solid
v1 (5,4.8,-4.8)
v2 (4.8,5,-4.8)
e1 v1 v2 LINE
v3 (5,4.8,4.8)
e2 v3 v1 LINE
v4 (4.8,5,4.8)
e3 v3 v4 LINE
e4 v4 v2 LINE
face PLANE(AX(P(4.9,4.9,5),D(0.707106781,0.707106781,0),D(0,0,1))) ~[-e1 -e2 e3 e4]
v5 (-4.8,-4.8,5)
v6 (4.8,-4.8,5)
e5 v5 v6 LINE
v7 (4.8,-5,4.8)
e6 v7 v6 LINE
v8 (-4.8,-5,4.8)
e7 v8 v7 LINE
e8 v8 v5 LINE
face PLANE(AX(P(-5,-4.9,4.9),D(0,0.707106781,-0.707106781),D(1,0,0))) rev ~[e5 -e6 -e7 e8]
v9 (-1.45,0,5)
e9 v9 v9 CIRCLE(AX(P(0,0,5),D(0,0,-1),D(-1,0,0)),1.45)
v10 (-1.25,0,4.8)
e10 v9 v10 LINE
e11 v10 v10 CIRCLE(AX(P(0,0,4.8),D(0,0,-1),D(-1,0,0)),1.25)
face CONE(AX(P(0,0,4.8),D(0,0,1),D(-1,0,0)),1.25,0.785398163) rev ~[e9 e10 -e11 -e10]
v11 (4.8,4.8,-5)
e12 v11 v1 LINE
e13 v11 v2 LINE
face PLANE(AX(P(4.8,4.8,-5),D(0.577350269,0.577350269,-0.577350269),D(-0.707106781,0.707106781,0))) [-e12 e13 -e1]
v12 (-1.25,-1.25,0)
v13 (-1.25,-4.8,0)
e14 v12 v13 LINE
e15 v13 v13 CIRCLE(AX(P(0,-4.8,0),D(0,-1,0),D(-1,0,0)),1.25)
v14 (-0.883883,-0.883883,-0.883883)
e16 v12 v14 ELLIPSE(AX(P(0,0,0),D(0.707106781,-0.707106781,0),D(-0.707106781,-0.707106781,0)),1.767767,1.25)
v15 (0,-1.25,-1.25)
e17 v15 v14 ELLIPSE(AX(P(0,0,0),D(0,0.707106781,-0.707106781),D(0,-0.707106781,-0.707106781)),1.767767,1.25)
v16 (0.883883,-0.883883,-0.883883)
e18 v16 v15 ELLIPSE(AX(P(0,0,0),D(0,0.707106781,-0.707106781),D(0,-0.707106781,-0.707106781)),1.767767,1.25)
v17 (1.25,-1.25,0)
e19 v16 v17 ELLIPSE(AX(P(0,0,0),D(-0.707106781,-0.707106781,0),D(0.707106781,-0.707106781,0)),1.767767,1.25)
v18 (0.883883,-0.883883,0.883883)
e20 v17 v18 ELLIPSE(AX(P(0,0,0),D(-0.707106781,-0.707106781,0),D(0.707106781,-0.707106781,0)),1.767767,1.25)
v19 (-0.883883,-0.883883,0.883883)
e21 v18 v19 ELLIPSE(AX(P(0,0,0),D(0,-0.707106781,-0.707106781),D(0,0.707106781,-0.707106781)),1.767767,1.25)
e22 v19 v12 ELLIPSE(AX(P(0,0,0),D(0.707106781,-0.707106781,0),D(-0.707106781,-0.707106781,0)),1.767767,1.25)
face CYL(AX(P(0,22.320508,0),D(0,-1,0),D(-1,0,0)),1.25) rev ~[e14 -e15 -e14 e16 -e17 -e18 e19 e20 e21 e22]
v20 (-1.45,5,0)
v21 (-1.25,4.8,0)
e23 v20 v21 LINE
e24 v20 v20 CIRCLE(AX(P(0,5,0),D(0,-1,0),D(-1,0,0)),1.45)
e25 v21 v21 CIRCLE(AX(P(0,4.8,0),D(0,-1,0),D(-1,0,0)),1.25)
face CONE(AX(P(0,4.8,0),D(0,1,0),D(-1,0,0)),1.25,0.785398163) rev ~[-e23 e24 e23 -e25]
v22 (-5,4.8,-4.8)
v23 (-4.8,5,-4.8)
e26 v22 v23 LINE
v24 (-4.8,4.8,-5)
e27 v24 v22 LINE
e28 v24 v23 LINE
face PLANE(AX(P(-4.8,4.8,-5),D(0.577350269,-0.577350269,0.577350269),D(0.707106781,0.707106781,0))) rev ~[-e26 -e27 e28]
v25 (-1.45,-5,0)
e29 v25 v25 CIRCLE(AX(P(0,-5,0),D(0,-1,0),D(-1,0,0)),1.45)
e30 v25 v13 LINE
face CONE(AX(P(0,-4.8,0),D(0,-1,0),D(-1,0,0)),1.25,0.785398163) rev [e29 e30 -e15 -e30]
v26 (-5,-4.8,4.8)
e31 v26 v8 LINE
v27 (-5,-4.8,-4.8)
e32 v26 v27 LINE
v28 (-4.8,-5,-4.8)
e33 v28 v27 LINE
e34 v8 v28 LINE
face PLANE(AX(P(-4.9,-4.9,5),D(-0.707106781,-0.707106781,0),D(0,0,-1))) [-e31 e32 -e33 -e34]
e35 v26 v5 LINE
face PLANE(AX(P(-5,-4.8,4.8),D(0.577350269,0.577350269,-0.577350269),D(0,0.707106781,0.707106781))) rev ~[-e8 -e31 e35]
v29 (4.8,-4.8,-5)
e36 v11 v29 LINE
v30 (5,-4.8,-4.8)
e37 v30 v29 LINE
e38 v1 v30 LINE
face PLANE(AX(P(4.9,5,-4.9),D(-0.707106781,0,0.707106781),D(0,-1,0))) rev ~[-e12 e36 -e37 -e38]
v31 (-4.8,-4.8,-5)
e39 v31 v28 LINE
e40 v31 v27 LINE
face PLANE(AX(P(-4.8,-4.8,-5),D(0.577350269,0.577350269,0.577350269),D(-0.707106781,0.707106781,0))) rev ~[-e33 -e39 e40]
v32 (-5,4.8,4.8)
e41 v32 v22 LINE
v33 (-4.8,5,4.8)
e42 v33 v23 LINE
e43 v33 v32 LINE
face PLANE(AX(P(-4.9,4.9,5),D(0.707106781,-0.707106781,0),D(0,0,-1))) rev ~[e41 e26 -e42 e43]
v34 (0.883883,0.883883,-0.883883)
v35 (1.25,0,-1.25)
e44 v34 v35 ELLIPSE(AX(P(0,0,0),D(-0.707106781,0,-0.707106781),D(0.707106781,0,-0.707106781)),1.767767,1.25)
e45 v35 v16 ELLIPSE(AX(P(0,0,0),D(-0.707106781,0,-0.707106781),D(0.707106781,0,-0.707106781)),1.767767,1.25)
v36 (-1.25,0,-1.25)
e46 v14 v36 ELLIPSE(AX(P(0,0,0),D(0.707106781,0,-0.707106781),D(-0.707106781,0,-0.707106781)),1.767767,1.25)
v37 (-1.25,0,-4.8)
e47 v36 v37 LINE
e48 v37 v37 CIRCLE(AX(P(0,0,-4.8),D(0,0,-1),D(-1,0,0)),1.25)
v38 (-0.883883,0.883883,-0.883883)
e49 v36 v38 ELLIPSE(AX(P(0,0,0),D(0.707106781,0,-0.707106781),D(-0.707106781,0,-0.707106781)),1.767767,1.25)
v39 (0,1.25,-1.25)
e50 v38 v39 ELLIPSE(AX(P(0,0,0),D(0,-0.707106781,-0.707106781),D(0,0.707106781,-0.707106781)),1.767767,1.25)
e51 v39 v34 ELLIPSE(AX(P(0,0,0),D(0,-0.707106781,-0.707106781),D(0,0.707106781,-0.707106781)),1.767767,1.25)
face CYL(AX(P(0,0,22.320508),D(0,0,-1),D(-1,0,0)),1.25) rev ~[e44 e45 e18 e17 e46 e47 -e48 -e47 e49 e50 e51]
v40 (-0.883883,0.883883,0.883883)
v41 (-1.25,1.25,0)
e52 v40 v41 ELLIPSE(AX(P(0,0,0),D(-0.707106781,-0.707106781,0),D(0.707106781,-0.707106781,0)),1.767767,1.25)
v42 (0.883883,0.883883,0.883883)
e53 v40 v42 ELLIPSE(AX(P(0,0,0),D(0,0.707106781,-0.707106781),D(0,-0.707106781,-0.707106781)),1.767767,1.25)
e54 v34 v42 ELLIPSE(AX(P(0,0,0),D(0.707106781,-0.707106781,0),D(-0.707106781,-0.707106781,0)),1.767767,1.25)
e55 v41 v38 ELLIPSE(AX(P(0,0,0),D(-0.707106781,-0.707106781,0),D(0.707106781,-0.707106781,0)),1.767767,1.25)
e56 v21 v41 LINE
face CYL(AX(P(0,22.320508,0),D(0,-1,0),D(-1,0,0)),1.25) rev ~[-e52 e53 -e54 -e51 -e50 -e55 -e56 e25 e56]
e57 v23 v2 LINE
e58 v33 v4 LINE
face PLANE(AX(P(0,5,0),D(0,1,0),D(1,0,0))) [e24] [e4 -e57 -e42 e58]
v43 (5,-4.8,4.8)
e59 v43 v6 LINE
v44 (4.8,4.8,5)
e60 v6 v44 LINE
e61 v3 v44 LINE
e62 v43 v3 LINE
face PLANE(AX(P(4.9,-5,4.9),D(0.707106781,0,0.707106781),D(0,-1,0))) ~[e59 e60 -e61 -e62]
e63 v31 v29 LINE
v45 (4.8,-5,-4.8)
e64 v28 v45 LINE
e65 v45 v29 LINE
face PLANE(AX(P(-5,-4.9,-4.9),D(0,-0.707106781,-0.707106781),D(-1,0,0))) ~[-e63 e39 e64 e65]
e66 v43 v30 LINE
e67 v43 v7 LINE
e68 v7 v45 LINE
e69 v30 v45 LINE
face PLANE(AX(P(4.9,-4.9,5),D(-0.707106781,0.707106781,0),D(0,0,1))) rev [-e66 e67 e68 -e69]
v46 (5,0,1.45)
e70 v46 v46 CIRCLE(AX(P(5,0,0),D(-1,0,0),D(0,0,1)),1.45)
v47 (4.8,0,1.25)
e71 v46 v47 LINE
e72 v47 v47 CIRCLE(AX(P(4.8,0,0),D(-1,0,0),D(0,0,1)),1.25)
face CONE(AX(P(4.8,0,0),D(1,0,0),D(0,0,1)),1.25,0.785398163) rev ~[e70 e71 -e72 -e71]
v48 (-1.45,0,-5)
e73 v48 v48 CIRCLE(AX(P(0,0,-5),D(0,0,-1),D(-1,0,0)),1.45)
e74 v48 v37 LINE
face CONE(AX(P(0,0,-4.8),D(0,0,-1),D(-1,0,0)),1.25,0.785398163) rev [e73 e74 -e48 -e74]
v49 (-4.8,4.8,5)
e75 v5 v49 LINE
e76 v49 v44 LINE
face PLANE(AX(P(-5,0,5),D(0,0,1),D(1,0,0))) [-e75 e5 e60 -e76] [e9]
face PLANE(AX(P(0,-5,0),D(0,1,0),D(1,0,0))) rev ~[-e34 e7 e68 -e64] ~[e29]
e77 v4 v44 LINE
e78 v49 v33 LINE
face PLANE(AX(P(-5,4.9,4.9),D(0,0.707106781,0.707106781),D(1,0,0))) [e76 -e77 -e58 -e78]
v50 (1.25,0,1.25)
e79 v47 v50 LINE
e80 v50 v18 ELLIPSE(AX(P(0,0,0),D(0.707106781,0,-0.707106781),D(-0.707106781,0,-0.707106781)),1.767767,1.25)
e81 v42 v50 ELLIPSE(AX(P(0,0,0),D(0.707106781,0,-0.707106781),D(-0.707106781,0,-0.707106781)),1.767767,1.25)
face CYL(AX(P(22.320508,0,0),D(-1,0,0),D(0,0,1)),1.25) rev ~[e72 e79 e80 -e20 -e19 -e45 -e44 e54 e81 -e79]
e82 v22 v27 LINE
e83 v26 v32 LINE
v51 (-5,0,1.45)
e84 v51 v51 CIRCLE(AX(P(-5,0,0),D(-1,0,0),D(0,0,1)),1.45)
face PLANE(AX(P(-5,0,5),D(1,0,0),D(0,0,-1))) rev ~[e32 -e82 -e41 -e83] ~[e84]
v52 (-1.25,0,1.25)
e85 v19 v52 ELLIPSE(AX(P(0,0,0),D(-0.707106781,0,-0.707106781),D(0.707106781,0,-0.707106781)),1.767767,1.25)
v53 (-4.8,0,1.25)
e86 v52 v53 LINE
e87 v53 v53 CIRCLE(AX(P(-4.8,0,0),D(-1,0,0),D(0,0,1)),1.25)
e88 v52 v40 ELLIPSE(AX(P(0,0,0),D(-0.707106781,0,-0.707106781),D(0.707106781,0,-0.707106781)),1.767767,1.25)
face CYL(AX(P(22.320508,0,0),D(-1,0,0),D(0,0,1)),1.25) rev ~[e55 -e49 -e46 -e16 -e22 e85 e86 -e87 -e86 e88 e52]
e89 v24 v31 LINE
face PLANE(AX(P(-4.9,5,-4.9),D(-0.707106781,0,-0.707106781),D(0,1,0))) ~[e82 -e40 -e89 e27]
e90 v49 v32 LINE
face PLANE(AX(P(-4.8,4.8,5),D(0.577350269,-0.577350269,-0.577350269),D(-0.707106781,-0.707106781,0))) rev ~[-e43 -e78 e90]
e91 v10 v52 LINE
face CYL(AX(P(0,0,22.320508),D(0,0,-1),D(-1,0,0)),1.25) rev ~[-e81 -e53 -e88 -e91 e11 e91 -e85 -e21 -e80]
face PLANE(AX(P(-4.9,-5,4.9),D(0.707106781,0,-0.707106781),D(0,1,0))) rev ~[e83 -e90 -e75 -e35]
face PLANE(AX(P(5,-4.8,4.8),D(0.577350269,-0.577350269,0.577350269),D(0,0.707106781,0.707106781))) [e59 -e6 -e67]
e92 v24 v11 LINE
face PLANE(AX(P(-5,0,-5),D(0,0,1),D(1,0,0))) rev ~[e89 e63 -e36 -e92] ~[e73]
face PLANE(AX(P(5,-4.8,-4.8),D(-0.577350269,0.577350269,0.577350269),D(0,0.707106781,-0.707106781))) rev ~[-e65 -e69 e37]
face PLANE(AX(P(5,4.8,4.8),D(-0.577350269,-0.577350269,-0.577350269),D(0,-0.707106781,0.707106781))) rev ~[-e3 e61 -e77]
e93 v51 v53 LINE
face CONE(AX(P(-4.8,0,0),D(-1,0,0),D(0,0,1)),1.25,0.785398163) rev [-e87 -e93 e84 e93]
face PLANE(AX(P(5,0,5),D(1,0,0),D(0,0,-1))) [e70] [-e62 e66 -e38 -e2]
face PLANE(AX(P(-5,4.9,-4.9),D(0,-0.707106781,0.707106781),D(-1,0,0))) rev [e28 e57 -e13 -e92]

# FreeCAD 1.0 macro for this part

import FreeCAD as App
import Part
import Sketcher
from FreeCAD import Vector
Q = App.Units.Quantity


def edges_at(feature, points):
    """Names of the edges that pass closest to the given points."""
    edges = feature.Shape.Edges
    near = lambda p: min(range(len(edges)), key=lambda i: edges[i].distToShape(Part.Vertex(*p))[0])
    return sorted({f"Edge{near(p) + 1}" for p in points})


def add_polygon(sketch, points):
    """Adds a closed chain of lines whose ends are joined by coincident constraints."""
    first, n = sketch.GeometryCount, len(points)
    for a, b in zip(points, points[1:] + points[:1]):
        sketch.addGeometry(Part.LineSegment(App.Vector(*a, 0), App.Vector(*b, 0)), False)
    for i in range(n):
        sketch.addConstraint(Sketcher.Constraint("Coincident", first + i, 2, first + (i + 1) % n, 1))

doc = App.newDocument("Part")
params = doc.addObject("Spreadsheet::Sheet", "Params")
for row, (alias, value) in enumerate([
    ("sketch1_width", "10 mm"),
    ("pad1_length", "10 mm"),
    ("sketch2_diameter", "2.5 mm"),
    ("hole_diameter", "2.5 mm"),
    ("sketch3_diameter", "2.5 mm"),
    ("hole2_diameter", "2.5 mm"),
    ("sketch4_diameter", "2.5 mm"),
    ("hole3_diameter", "2.5 mm"),
    ("chamfer_size", "0.2 mm"),
], start=1):
    params.set(f"A{row}", alias)
    params.set(f"B{row}", "=" + value)
    params.setAlias(f"B{row}", alias)

body = doc.addObject("PartDesign::Body", "Body")

# Sketch on XZ plane
sketch1 = body.newObject("Sketcher::SketchObject", "Sketch")
sketch1.AttachmentSupport = (doc.getObject("XZ_Plane"), [""])
sketch1.MapMode = "FlatFace"
add_polygon(sketch1, [(-5, -5), (-5, 5), (5, 5), (5, -5)])  # lines 0-3
sketch1.addConstraint([
    Sketcher.Constraint("Vertical", 0),
    Sketcher.Constraint("Horizontal", 1),
    Sketcher.Constraint("Vertical", 2),
    Sketcher.Constraint("Horizontal", 3),
    Sketcher.Constraint("Symmetric", 0, 2, 2, 2, -1, 1),
    Sketcher.Constraint("Equal", 3, 0),
    Sketcher.Constraint("DistanceX", 1, 1, 1, 2, Q("10 mm")),
])
sketch1.setExpression("Constraints[10]", "Params.sketch1_width")
pad1 = body.newObject("PartDesign::Pad", "Pad")
pad1.Profile = sketch1
pad1.setExpression("Length", "Params.pad1_length")
pad1.Midplane = True

# Sketch on XY plane
sketch2 = body.newObject("Sketcher::SketchObject", "Sketch001")
sketch2.AttachmentSupport = (doc.getObject("XY_Plane"), [""])
sketch2.MapMode = "FlatFace"
sketch2.AttachmentOffset = App.Placement(Vector(0, 0, 5), App.Rotation())
sketch2.addGeometry(Part.Circle(Vector(0, 0, 0), Vector(0, 0, 1), 1.25), False)
sketch2.addConstraint([
    Sketcher.Constraint("Coincident", 0, 3, -1, 1),
    Sketcher.Constraint("Diameter", 0, Q("2.5 mm")),
])
sketch2.setExpression("Constraints[1]", "Params.sketch2_diameter")
doc.recompute()
hole = body.newObject("PartDesign::Hole", "Hole")
hole.Profile = sketch2
hole.ThreadType = "None"
hole.setExpression("Diameter", "Params.hole_diameter")
hole.DepthType = "ThroughAll"

# Sketch on XZ plane
sketch3 = body.newObject("Sketcher::SketchObject", "Sketch002")
sketch3.AttachmentSupport = (doc.getObject("XZ_Plane"), [""])
sketch3.MapMode = "FlatFace"
sketch3.AttachmentOffset = App.Placement(Vector(0, 0, -5), App.Rotation())
sketch3.addGeometry(Part.Circle(Vector(0, 0, 0), Vector(0, 0, 1), 1.25), False)
sketch3.addConstraint([
    Sketcher.Constraint("Coincident", 0, 3, -1, 1),
    Sketcher.Constraint("Diameter", 0, Q("2.5 mm")),
])
sketch3.setExpression("Constraints[1]", "Params.sketch3_diameter")
doc.recompute()
hole2 = body.newObject("PartDesign::Hole", "Hole001")
hole2.Profile = sketch3
hole2.ThreadType = "None"
hole2.setExpression("Diameter", "Params.hole2_diameter")
hole2.DepthType = "ThroughAll"
hole2.Reversed = True

# Sketch on YZ plane
sketch4 = body.newObject("Sketcher::SketchObject", "Sketch003")
sketch4.AttachmentSupport = (doc.getObject("YZ_Plane"), [""])
sketch4.MapMode = "FlatFace"
sketch4.AttachmentOffset = App.Placement(Vector(0, 0, 5), App.Rotation())
sketch4.addGeometry(Part.Circle(Vector(0, 0, 0), Vector(0, 0, 1), 1.25), False)
sketch4.addConstraint([
    Sketcher.Constraint("Coincident", 0, 3, -1, 1),
    Sketcher.Constraint("Diameter", 0, Q("2.5 mm")),
])
sketch4.setExpression("Constraints[1]", "Params.sketch4_diameter")
doc.recompute()
hole3 = body.newObject("PartDesign::Hole", "Hole002")
hole3.Profile = sketch4
hole3.ThreadType = "None"
hole3.setExpression("Diameter", "Params.hole3_diameter")
hole3.DepthType = "ThroughAll"
doc.recompute()

chamfer = body.newObject("PartDesign::Chamfer", "Chamfer")
chamfer.Base = (hole3, edges_at(hole3, [
    (-5, 5, 0),
    (1.25, 0, 5),
    (1.25, 0, -5),
    (0, 5, 5),
    (1.25, -5, 0),
    (1.25, 5, 0),
    (-5, 0, -1.25),
    (5, 0, -1.25),
    (5, 5, 0),
    (0, -5, 5),
    (-5, -5, 0),
    (0, -5, -5),
    (5, -5, 0),
    (5, 0, 5),
    (-5, 0, 5),
    (-5, 0, -5),
    (5, 0, -5),
    (0, 5, -5),
]))
chamfer.setExpression("Size", "Params.chamfer_size")

doc.recompute()
